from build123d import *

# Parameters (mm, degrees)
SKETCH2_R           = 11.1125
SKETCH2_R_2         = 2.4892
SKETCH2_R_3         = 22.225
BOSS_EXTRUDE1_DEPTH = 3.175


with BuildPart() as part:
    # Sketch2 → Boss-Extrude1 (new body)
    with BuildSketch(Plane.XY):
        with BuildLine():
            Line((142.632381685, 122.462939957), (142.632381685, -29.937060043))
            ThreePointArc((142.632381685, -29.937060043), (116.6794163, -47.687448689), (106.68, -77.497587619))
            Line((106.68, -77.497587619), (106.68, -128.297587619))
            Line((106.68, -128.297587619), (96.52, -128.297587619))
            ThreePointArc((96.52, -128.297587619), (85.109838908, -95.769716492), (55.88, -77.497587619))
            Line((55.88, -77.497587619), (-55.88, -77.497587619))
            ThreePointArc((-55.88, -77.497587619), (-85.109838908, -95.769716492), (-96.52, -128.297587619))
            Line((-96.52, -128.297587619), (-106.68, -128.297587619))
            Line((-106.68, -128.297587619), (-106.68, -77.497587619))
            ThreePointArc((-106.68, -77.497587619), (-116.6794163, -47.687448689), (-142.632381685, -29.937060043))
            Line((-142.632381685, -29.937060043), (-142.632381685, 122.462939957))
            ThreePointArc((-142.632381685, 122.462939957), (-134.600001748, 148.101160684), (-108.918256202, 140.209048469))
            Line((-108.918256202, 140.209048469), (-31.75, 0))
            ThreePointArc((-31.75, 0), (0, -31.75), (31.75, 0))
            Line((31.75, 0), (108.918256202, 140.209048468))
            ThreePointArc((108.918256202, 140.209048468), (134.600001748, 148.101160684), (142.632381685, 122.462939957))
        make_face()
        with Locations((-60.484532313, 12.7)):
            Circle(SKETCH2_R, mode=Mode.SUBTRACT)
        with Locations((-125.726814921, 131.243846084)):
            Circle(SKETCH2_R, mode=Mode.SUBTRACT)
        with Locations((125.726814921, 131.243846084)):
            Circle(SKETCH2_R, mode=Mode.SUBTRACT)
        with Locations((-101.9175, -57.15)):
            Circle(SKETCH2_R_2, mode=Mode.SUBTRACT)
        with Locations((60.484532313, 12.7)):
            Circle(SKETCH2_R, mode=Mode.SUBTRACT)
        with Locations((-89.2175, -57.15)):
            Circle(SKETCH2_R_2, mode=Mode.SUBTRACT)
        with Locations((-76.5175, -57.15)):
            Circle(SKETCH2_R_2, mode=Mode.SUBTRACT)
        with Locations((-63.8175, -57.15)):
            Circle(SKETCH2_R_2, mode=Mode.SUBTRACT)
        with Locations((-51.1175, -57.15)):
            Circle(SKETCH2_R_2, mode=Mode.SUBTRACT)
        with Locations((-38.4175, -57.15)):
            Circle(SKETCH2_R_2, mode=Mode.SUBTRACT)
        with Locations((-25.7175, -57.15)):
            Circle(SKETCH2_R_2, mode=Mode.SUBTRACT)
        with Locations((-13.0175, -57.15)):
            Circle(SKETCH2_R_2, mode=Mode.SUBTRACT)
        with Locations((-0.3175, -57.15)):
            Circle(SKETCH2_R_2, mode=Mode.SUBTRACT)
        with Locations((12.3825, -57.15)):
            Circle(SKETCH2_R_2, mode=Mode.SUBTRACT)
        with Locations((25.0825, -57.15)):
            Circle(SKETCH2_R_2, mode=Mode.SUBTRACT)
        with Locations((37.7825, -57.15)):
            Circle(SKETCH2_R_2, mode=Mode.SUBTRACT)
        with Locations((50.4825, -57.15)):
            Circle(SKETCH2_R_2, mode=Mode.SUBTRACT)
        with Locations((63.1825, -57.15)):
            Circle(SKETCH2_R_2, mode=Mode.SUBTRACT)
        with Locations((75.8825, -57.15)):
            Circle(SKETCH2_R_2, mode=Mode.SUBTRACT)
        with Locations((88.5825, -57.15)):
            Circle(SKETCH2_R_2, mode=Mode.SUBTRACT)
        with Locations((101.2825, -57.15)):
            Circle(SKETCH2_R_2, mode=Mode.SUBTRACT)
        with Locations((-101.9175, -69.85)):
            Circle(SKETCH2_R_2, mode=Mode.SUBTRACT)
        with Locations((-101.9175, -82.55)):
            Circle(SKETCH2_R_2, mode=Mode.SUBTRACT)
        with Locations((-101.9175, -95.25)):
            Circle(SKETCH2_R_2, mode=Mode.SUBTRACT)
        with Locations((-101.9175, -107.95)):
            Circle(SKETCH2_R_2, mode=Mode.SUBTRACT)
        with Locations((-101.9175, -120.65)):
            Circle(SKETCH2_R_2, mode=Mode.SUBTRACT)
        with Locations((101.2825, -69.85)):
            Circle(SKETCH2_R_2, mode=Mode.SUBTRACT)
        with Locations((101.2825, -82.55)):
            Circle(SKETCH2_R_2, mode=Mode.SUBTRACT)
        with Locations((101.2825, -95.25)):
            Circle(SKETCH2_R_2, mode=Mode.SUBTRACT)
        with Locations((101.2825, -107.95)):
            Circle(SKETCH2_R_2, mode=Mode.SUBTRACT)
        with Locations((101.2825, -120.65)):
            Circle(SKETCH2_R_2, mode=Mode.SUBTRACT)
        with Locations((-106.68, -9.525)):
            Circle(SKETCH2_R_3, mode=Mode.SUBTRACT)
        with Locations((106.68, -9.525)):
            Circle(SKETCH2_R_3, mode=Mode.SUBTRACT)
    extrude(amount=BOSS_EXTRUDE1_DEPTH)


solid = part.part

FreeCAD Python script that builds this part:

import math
import FreeCAD as App
import Part
import Sketcher
Q = App.Units.Quantity

doc = App.newDocument("Part")
params = doc.addObject("Spreadsheet::Sheet", "Params")
for row, (alias, value) in enumerate([
    ("sketch1_diameter", "1.75 in"),
    ("sketch1_height", "6 in"),
    ("sketch1_height2", "2 in"),
    ("sketch1_radius", "0.75 in"),
    ("sketch1_radius2", "1.25 in"),
    ("pad1_length", "0.125 in"),
], start=1):
    params.set(f"A{row}", alias)
    params.set(f"B{row}", "=" + value)
    params.setAlias(f"B{row}", alias)

body = doc.addObject("PartDesign::Body", "Body")

# Sketch on XY plane
sketch1 = body.newObject("Sketcher::SketchObject", "Sketch")
sketch1.AttachmentSupport = (doc.getObject("XY_Plane"), [""])
sketch1.MapMode = "FlatFace"
sketch1.addGeometry(Part.LineSegment(App.Vector(142.6, -29.9, 0), App.Vector(142.6, 122.5, 0)), False)
sketch1.addGeometry(Part.ArcOfCircle(Part.Circle(App.Vector(125.7, 131.2, 0), App.Vector(0, 0, 1), 19.1), math.radians(-27), math.radians(152)), False)
sketch1.addGeometry(Part.LineSegment(App.Vector(108.9, 140.2, 0), App.Vector(31.8, 0, 0)), False)
sketch1.addGeometry(Part.ArcOfCircle(Part.Circle(App.Vector(0, 0, 0), App.Vector(0, 0, 1), 31.8), math.radians(180), math.radians(360)), False)
sketch1.addGeometry(Part.LineSegment(App.Vector(-31.8, 0, 0), App.Vector(-108.9, 140.2, 0)), False)
sketch1.addGeometry(Part.ArcOfCircle(Part.Circle(App.Vector(-125.7, 131.2, 0), App.Vector(0, 0, 1), 19.1), math.radians(28), math.radians(207)), False)
sketch1.addGeometry(Part.LineSegment(App.Vector(-142.6, 122.5, 0), App.Vector(-142.6, -29.9, 0)), False)
sketch1.addGeometry(Part.ArcOfCircle(Part.Circle(App.Vector(-156.1, -77.5, 0), App.Vector(0, 0, 1), 49.4), math.radians(0), math.radians(74)), False)
sketch1.addGeometry(Part.LineSegment(App.Vector(-106.7, -77.5, 0), App.Vector(-106.7, -128.3, 0)), False)
sketch1.addGeometry(Part.LineSegment(App.Vector(-106.7, -128.3, 0), App.Vector(-96.5, -128.3, 0)), False)
sketch1.addGeometry(Part.ArcOfCircle(Part.Circle(App.Vector(-44.5, -128.3, 0), App.Vector(0, 0, 1), 52.1), math.radians(103), math.radians(180)), False)
sketch1.addGeometry(Part.LineSegment(App.Vector(-55.9, -77.5, 0), App.Vector(55.9, -77.5, 0)), False)
sketch1.addGeometry(Part.ArcOfCircle(Part.Circle(App.Vector(44.5, -128.3, 0), App.Vector(0, 0, 1), 52.1), math.radians(0), math.radians(77)), False)
sketch1.addGeometry(Part.LineSegment(App.Vector(96.5, -128.3, 0), App.Vector(106.7, -128.3, 0)), False)
sketch1.addGeometry(Part.LineSegment(App.Vector(106.7, -128.3, 0), App.Vector(106.7, -77.5, 0)), False)
sketch1.addGeometry(Part.ArcOfCircle(Part.Circle(App.Vector(156.1, -77.5, 0), App.Vector(0, 0, 1), 49.4), math.radians(106), math.radians(180)), False)
sketch1.addGeometry(Part.Circle(App.Vector(101.3, -120.7, 0), App.Vector(0, 0, 1), 2.5), False)
sketch1.addGeometry(Part.Circle(App.Vector(101.3, -108, 0), App.Vector(0, 0, 1), 2.5), False)
sketch1.addGeometry(Part.Circle(App.Vector(101.3, -95.2, 0), App.Vector(0, 0, 1), 2.5), False)
sketch1.addGeometry(Part.Circle(App.Vector(101.3, -82.5, 0), App.Vector(0, 0, 1), 2.5), False)
sketch1.addGeometry(Part.Circle(App.Vector(101.3, -69.8, 0), App.Vector(0, 0, 1), 2.5), False)
sketch1.addGeometry(Part.Circle(App.Vector(101.3, -57.1, 0), App.Vector(0, 0, 1), 2.5), False)
sketch1.addGeometry(Part.Circle(App.Vector(88.6, -57.1, 0), App.Vector(0, 0, 1), 2.5), False)
sketch1.addGeometry(Part.Circle(App.Vector(75.9, -57.1, 0), App.Vector(0, 0, 1), 2.5), False)
sketch1.addGeometry(Part.Circle(App.Vector(63.2, -57.1, 0), App.Vector(0, 0, 1), 2.5), False)
sketch1.addGeometry(Part.Circle(App.Vector(50.5, -57.1, 0), App.Vector(0, 0, 1), 2.5), False)
sketch1.addGeometry(Part.Circle(App.Vector(37.8, -57.1, 0), App.Vector(0, 0, 1), 2.5), False)
sketch1.addGeometry(Part.Circle(App.Vector(25.1, -57.1, 0), App.Vector(0, 0, 1), 2.5), False)
sketch1.addGeometry(Part.Circle(App.Vector(12.4, -57.1, 0), App.Vector(0, 0, 1), 2.5), False)
sketch1.addGeometry(Part.Circle(App.Vector(106.7, -9.5, 0), App.Vector(0, 0, 1), 22.2), False)
sketch1.addGeometry(Part.Circle(App.Vector(-0.3, -57.1, 0), App.Vector(0, 0, 1), 2.5), False)
sketch1.addGeometry(Part.Circle(App.Vector(-13, -57.1, 0), App.Vector(0, 0, 1), 2.5), False)
sketch1.addGeometry(Part.Circle(App.Vector(-25.7, -57.1, 0), App.Vector(0, 0, 1), 2.5), False)
sketch1.addGeometry(Part.Circle(App.Vector(-38.4, -57.1, 0), App.Vector(0, 0, 1), 2.5), False)
sketch1.addGeometry(Part.Circle(App.Vector(-51.1, -57.1, 0), App.Vector(0, 0, 1), 2.5), False)
sketch1.addGeometry(Part.Circle(App.Vector(-63.8, -57.1, 0), App.Vector(0, 0, 1), 2.5), False)
sketch1.addGeometry(Part.Circle(App.Vector(-101.9, -120.7, 0), App.Vector(0, 0, 1), 2.5), False)
sketch1.addGeometry(Part.Circle(App.Vector(-101.9, -108, 0), App.Vector(0, 0, 1), 2.5), False)
sketch1.addGeometry(Part.Circle(App.Vector(-101.9, -95.2, 0), App.Vector(0, 0, 1), 2.5), False)
sketch1.addGeometry(Part.Circle(App.Vector(-101.9, -82.5, 0), App.Vector(0, 0, 1), 2.5), False)
sketch1.addGeometry(Part.Circle(App.Vector(-76.5, -57.1, 0), App.Vector(0, 0, 1), 2.5), False)
sketch1.addGeometry(Part.Circle(App.Vector(-101.9, -69.8, 0), App.Vector(0, 0, 1), 2.5), False)
sketch1.addGeometry(Part.Circle(App.Vector(-89.2, -57.1, 0), App.Vector(0, 0, 1), 2.5), False)
sketch1.addGeometry(Part.Circle(App.Vector(-101.9, -57.1, 0), App.Vector(0, 0, 1), 2.5), False)
sketch1.addGeometry(Part.Circle(App.Vector(-106.7, -9.5, 0), App.Vector(0, 0, 1), 22.2), False)
sketch1.addGeometry(Part.Circle(App.Vector(60.5, 12.7, 0), App.Vector(0, 0, 1), 11.1), False)
sketch1.addGeometry(Part.Circle(App.Vector(125.7, 131.2, 0), App.Vector(0, 0, 1), 11.1), False)
sketch1.addGeometry(Part.Circle(App.Vector(-60.5, 12.7, 0), App.Vector(0, 0, 1), 11.1), False)
sketch1.addGeometry(Part.Circle(App.Vector(-125.7, 131.2, 0), App.Vector(0, 0, 1), 11.1), False)
sketch1.addConstraint(Sketcher.Constraint("Coincident", 0, 2, 1, 1))
sketch1.addConstraint(Sketcher.Constraint("Coincident", 1, 2, 2, 1))
sketch1.addConstraint(Sketcher.Constraint("Coincident", 2, 2, 3, 2))
sketch1.addConstraint(Sketcher.Constraint("Coincident", 3, 1, 4, 1))
sketch1.addConstraint(Sketcher.Constraint("Coincident", 4, 2, 5, 1))
sketch1.addConstraint(Sketcher.Constraint("Coincident", 5, 2, 6, 1))
sketch1.addConstraint(Sketcher.Constraint("Coincident", 6, 2, 7, 2))
sketch1.addConstraint(Sketcher.Constraint("Tangent", 7, 1, 8, 1))
sketch1.addConstraint(Sketcher.Constraint("Coincident", 8, 2, 9, 1))
sketch1.addConstraint(Sketcher.Constraint("Coincident", 9, 2, 10, 2))
sketch1.addConstraint(Sketcher.Constraint("Coincident", 10, 1, 11, 1))
sketch1.addConstraint(Sketcher.Constraint("Coincident", 11, 2, 12, 2))
sketch1.addConstraint(Sketcher.Constraint("Coincident", 12, 1, 13, 1))
sketch1.addConstraint(Sketcher.Constraint("Coincident", 13, 2, 14, 1))
sketch1.addConstraint(Sketcher.Constraint("Tangent", 14, 2, 15, 2))
sketch1.addConstraint(Sketcher.Constraint("Coincident", 15, 1, 0, 1))
sketch1.addConstraint(Sketcher.Constraint("Vertical", 0))
sketch1.addConstraint(Sketcher.Constraint("Vertical", 6))
sketch1.addConstraint(Sketcher.Constraint("Vertical", 8))
sketch1.addConstraint(Sketcher.Constraint("Horizontal", 9))
sketch1.addConstraint(Sketcher.Constraint("Horizontal", 11))
sketch1.addConstraint(Sketcher.Constraint("Horizontal", 13))
sketch1.addConstraint(Sketcher.Constraint("Vertical", 14))
sketch1.addConstraint(Sketcher.Constraint("Coincident", 3, 3, -1, 1))
sketch1.addConstraint(Sketcher.Constraint("Coincident", 46, 3, 1, 3))
sketch1.addConstraint(Sketcher.Constraint("Coincident", 48, 3, 5, 3))
sketch1.addConstraint(Sketcher.Constraint("Equal", 1, 5))
sketch1.addConstraint(Sketcher.Constraint("Equal", 10, 12))
sketch1.addConstraint(Sketcher.Constraint("Equal", 7, 15))
sketch1.addConstraint(Sketcher.Constraint("Equal", 16, 17))
sketch1.addConstraint(Sketcher.Constraint("Equal", 17, 18))
sketch1.addConstraint(Sketcher.Constraint("Equal", 18, 19))
sketch1.addConstraint(Sketcher.Constraint("Equal", 19, 20))
sketch1.addConstraint(Sketcher.Constraint("Equal", 20, 21))
sketch1.addConstraint(Sketcher.Constraint("Equal", 21, 22))
sketch1.addConstraint(Sketcher.Constraint("Equal", 22, 23))
sketch1.addConstraint(Sketcher.Constraint("Equal", 23, 24))
sketch1.addConstraint(Sketcher.Constraint("Equal", 24, 25))
sketch1.addConstraint(Sketcher.Constraint("Equal", 25, 26))
sketch1.addConstraint(Sketcher.Constraint("Equal", 26, 27))
sketch1.addConstraint(Sketcher.Constraint("Equal", 27, 28))
sketch1.addConstraint(Sketcher.Constraint("Equal", 28, 30))
sketch1.addConstraint(Sketcher.Constraint("Equal", 30, 31))
sketch1.addConstraint(Sketcher.Constraint("Equal", 31, 32))
sketch1.addConstraint(Sketcher.Constraint("Equal", 32, 33))
sketch1.addConstraint(Sketcher.Constraint("Equal", 33, 34))
sketch1.addConstraint(Sketcher.Constraint("Equal", 34, 35))
sketch1.addConstraint(Sketcher.Constraint("Equal", 35, 36))
sketch1.addConstraint(Sketcher.Constraint("Equal", 36, 37))
sketch1.addConstraint(Sketcher.Constraint("Equal", 37, 38))
sketch1.addConstraint(Sketcher.Constraint("Equal", 38, 39))
sketch1.addConstraint(Sketcher.Constraint("Equal", 39, 40))
sketch1.addConstraint(Sketcher.Constraint("Equal", 40, 41))
sketch1.addConstraint(Sketcher.Constraint("Equal", 41, 42))
sketch1.addConstraint(Sketcher.Constraint("Equal", 42, 43))
sketch1.addConstraint(Sketcher.Constraint("Equal", 29, 44))
sketch1.addConstraint(Sketcher.Constraint("Equal", 45, 46))
sketch1.addConstraint(Sketcher.Constraint("Equal", 46, 47))
sketch1.addConstraint(Sketcher.Constraint("Equal", 47, 48))
sketch1.addConstraint(Sketcher.Constraint("Symmetric", 1, 3, 5, 3, -2))
sketch1.addConstraint(Sketcher.Constraint("Symmetric", 10, 3, 12, 3, -2))
sketch1.addConstraint(Sketcher.Constraint("Symmetric", 7, 3, 15, 3, -2))
sketch1.addConstraint(Sketcher.Constraint("Symmetric", 29, 3, 44, 3, -2))
sketch1.addConstraint(Sketcher.Constraint("Symmetric", 45, 3, 47, 3, -2))
sketch1.addConstraint(Sketcher.Constraint("PointOnObject", 2, 2, -1))
sketch1.addConstraint(Sketcher.Constraint("PointOnObject", 3, 1, -1))
sketch1.addConstraint(Sketcher.Constraint("Horizontal", 21, 3, 22, 3))
sketch1.addConstraint(Sketcher.Constraint("Horizontal", 22, 3, 23, 3))
sketch1.addConstraint(Sketcher.Constraint("Horizontal", 23, 3, 24, 3))
sketch1.addConstraint(Sketcher.Constraint("Horizontal", 24, 3, 25, 3))
sketch1.addConstraint(Sketcher.Constraint("Horizontal", 25, 3, 26, 3))
sketch1.addConstraint(Sketcher.Constraint("Horizontal", 26, 3, 27, 3))
sketch1.addConstraint(Sketcher.Constraint("Horizontal", 27, 3, 28, 3))
sketch1.addConstraint(Sketcher.Constraint("Horizontal", 28, 3, 30, 3))
sketch1.addConstraint(Sketcher.Constraint("Horizontal", 30, 3, 31, 3))
sketch1.addConstraint(Sketcher.Constraint("Horizontal", 31, 3, 32, 3))
sketch1.addConstraint(Sketcher.Constraint("Horizontal", 32, 3, 33, 3))
sketch1.addConstraint(Sketcher.Constraint("Horizontal", 33, 3, 34, 3))
sketch1.addConstraint(Sketcher.Constraint("Horizontal", 34, 3, 35, 3))
sketch1.addConstraint(Sketcher.Constraint("Horizontal", 16, 3, 36, 3))
sketch1.addConstraint(Sketcher.Constraint("Horizontal", 17, 3, 37, 3))
sketch1.addConstraint(Sketcher.Constraint("Horizontal", 18, 3, 38, 3))
sketch1.addConstraint(Sketcher.Constraint("Horizontal", 19, 3, 39, 3))
sketch1.addConstraint(Sketcher.Constraint("Horizontal", 35, 3, 40, 3))
sketch1.addConstraint(Sketcher.Constraint("Horizontal", 20, 3, 41, 3))
sketch1.addConstraint(Sketcher.Constraint("Horizontal", 40, 3, 42, 3))
sketch1.addConstraint(Sketcher.Constraint("Horizontal", 42, 3, 43, 3))
sketch1.addConstraint(Sketcher.Constraint("Horizontal", 1, 2, 4, 2))
sketch1.addConstraint(Sketcher.Constraint("Horizontal", 0, 2, 5, 2))
sketch1.addConstraint(Sketcher.Constraint("Horizontal", 12, 3, 8, 2))
sketch1.addConstraint(Sketcher.Constraint("Horizontal", 7, 1, 10, 1))
sketch1.addConstraint(Sketcher.Constraint("Horizontal", 9, 2, 12, 1))
sketch1.addConstraint(Sketcher.Constraint("Vertical", 16, 3, 17, 3))
sketch1.addConstraint(Sketcher.Constraint("Vertical", 17, 3, 18, 3))
sketch1.addConstraint(Sketcher.Constraint("Vertical", 18, 3, 19, 3))
sketch1.addConstraint(Sketcher.Constraint("Vertical", 19, 3, 20, 3))
sketch1.addConstraint(Sketcher.Constraint("Vertical", 20, 3, 21, 3))
sketch1.addConstraint(Sketcher.Constraint("Vertical", 36, 3, 37, 3))
sketch1.addConstraint(Sketcher.Constraint("Vertical", 37, 3, 38, 3))
sketch1.addConstraint(Sketcher.Constraint("Vertical", 38, 3, 39, 3))
sketch1.addConstraint(Sketcher.Constraint("Vertical", 39, 3, 41, 3))
sketch1.addConstraint(Sketcher.Constraint("Vertical", 41, 3, 43, 3))
sketch1.addConstraint(Sketcher.Constraint("Vertical", 44, 3, 7, 1))
sketch1.addConstraint(Sketcher.Constraint("Diameter", 29, Q("1.75 in")))
sketch1.addConstraint(Sketcher.Constraint("DistanceY", 0, 1, 0, 2, Q("6 in")))
sketch1.addConstraint(Sketcher.Constraint("DistanceY", 8, 2, 8, 1, Q("2 in")))
sketch1.addConstraint(Sketcher.Constraint("Radius", 1, Q("0.75 in")))
sketch1.addConstraint(Sketcher.Constraint("Radius", 3, Q("1.25 in")))
sketch1.addConstraint(Sketcher.Constraint("Radius", 10, Q("2.05 in")))
sketch1.addConstraint(Sketcher.Constraint("Diameter", 16, Q("0.196 in")))
sketch1.addConstraint(Sketcher.Constraint("Diameter", 45, Q("0.875 in")))
sketch1.addConstraint(Sketcher.Constraint("DistanceX", 9, 1, 9, 2, Q("0.4 in")))
sketch1.addConstraint(Sketcher.Constraint("DistanceX", 11, 1, 11, 2, Q("4.4 in")))
sketch1.addConstraint(Sketcher.Constraint("DistanceY", 16, 3, 18, 3, Q("1 in")))
sketch1.addConstraint(Sketcher.Constraint("DistanceY", 17, 3, 19, 3, Q("1 in")))
sketch1.addConstraint(Sketcher.Constraint("DistanceY", 18, 3, 20, 3, Q("1 in")))
sketch1.addConstraint(Sketcher.Constraint("DistanceY", 19, 3, 21, 3, Q("1 in")))
sketch1.addConstraint(Sketcher.Constraint("DistanceX", 23, 3, 21, 3, Q("1 in")))
sketch1.addConstraint(Sketcher.Constraint("DistanceX", 24, 3, 22, 3, Q("1 in")))
sketch1.addConstraint(Sketcher.Constraint("DistanceX", 25, 3, 23, 3, Q("1 in")))
sketch1.addConstraint(Sketcher.Constraint("DistanceX", 26, 3, 24, 3, Q("1 in")))
sketch1.addConstraint(Sketcher.Constraint("DistanceX", 27, 3, 25, 3, Q("1 in")))
sketch1.addConstraint(Sketcher.Constraint("DistanceX", 28, 3, 26, 3, Q("1 in")))
sketch1.addConstraint(Sketcher.Constraint("DistanceX", 30, 3, 27, 3, Q("1 in")))
sketch1.addConstraint(Sketcher.Constraint("DistanceX", 31, 3, 28, 3, Q("1 in")))
sketch1.addConstraint(Sketcher.Constraint("DistanceX", 32, 3, 30, 3, Q("1 in")))
sketch1.addConstraint(Sketcher.Constraint("DistanceX", 33, 3, 31, 3, Q("1 in")))
sketch1.addConstraint(Sketcher.Constraint("DistanceX", 34, 3, 32, 3, Q("1 in")))
sketch1.addConstraint(Sketcher.Constraint("DistanceX", 35, 3, 33, 3, Q("1 in")))
sketch1.addConstraint(Sketcher.Constraint("DistanceX", 36, 3, 34, 3, Q("2 in")))
sketch1.addConstraint(Sketcher.Constraint("DistanceX", 40, 3, 34, 3, Q("1 in")))
sketch1.addConstraint(Sketcher.Constraint("DistanceX", 42, 3, 35, 3, Q("1 in")))
sketch1.addConstraint(Sketcher.Constraint("DistanceY", -1, 1, 45, 3, Q("0.5 in")))
sketch1.addConstraint(Sketcher.Constraint("DistanceY", 16, 3, 17, 3, Q("0.5 in")))
sketch1.addConstraint(Sketcher.Constraint("DistanceX", 22, 3, 21, 3, Q("0.5 in")))
sketch1.addConstraint(Sketcher.Constraint("DistanceY", 16, 3, -1, 1, Q("4.75 in")))
sketch1.addConstraint(Sketcher.Constraint("DistanceY", 29, 3, -1, 1, Q("0.375 in")))
sketch1.addConstraint(Sketcher.Constraint("Radius", 7, Q("49.434521 mm")))
sketch1.addConstraint(Sketcher.Constraint("DistanceX", 44, 3, 43, 3, Q("0.1875 in")))
sketch1.addConstraint(Sketcher.Constraint("DistanceX", -1, 1, 0, 2, Q("142.632382 mm")))
sketch1.addConstraint(Sketcher.Constraint("DistanceY", -1, 1, 0, 2, Q("122.46294 mm")))
sketch1.addConstraint(Sketcher.Constraint("DistanceY", -1, 1, 1, 2, Q("140.209048 mm")))
sketch1.addConstraint(Sketcher.Constraint("DistanceX", 5, 3, 1, 3, Q("251.45363 mm")))
sketch1.addConstraint(Sketcher.Constraint("DistanceX", 45, 3, 0, 2, Q("82.147849 mm")))
sketch1.setExpression("Constraints[103]", "Params.sketch1_diameter")
sketch1.setExpression("Constraints[104]", "Params.sketch1_height")
sketch1.setExpression("Constraints[105]", "Params.sketch1_height2")
sketch1.setExpression("Constraints[106]", "Params.sketch1_radius")
sketch1.setExpression("Constraints[107]", "Params.sketch1_radius2")
pad1 = body.newObject("PartDesign::Pad", "Pad")
pad1.Profile = sketch1
pad1.setExpression("Length", "Params.pad1_length")

doc.recompute()
